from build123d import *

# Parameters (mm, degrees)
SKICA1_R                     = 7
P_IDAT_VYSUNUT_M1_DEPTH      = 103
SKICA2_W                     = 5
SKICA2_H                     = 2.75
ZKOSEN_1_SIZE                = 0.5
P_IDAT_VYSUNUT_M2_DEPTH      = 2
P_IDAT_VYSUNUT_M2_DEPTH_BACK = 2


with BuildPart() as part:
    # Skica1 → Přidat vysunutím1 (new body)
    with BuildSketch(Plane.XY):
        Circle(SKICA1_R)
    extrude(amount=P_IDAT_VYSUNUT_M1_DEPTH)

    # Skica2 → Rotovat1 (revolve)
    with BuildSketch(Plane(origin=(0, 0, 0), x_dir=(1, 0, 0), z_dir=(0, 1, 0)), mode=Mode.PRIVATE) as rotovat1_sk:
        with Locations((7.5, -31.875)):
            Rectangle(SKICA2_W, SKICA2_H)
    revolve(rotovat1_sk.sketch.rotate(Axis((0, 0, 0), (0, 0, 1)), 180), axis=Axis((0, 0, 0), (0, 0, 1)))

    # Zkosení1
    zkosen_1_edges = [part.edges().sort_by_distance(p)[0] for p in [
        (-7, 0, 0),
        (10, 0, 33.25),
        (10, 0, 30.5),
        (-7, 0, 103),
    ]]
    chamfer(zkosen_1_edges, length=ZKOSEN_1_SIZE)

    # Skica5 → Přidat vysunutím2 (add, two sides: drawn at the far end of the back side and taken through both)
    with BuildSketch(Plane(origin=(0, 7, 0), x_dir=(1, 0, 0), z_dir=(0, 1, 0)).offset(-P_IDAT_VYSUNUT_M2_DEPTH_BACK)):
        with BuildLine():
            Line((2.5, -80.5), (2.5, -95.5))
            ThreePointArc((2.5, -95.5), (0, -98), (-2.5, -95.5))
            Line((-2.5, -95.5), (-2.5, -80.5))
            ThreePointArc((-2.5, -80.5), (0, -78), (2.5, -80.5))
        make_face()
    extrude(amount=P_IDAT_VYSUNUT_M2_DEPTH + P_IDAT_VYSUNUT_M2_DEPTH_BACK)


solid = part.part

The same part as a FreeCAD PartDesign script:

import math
import FreeCAD as App
import Part
import Sketcher

V = App.Vector


def edges_at(feature, points):
    """Names of the edges that pass closest to the given points."""
    edges = feature.Shape.Edges
    near = lambda p: min(range(len(edges)), key=lambda i: edges[i].distToShape(Part.Vertex(*p))[0])
    return sorted({f"Edge{near(p) + 1}" for p in points})


def add_polygon(sketch, points):
    """Adds a closed chain of lines whose ends are joined by coincident constraints."""
    first, n = sketch.GeometryCount, len(points)
    for a, b in zip(points, points[1:] + points[:1]):
        sketch.addGeometry(Part.LineSegment(App.Vector(*a, 0), App.Vector(*b, 0)), False)
    for i in range(n):
        sketch.addConstraint(Sketcher.Constraint("Coincident", first + i, 2, first + (i + 1) % n, 1))

doc = App.newDocument("Part")
body = doc.addObject("PartDesign::Body", "Body")

sketch1 = body.newObject("Sketcher::SketchObject", "Sketch")
sketch1.AttachmentSupport = (doc.getObject("XY_Plane"), [""])
sketch1.MapMode = "FlatFace"
sketch1.addGeometry(Part.Circle(V(0, 0, 0), V(0, 0, 1), 7), False)
sketch1.addConstraint([
    Sketcher.Constraint("Coincident", 0, 3, -1, 1),
    Sketcher.Constraint("Diameter", 0, 14.0),
])
pad1 = body.newObject("PartDesign::Pad", "Pad")
pad1.Profile = sketch1
pad1.Length = 103

sketch2 = body.newObject("Sketcher::SketchObject", "Sketch001")
sketch2.AttachmentSupport = (doc.getObject("XZ_Plane"), [""])
sketch2.MapMode = "FlatFace"
add_polygon(sketch2, [(5, 30.5), (5, 33.2), (10, 33.2), (10, 30.5)])
sketch2.addConstraint([
    Sketcher.Constraint("Vertical", 0),
    Sketcher.Constraint("Horizontal", 1),
    Sketcher.Constraint("Vertical", 2),
    Sketcher.Constraint("Horizontal", 3),
    Sketcher.Constraint("DistanceX", 1, 1, 1, 2, 5.0),
    Sketcher.Constraint("DistanceX", -1, 1, 0, 2, 5.0),
    Sketcher.Constraint("DistanceY", 0, 1, 0, 2, 2.75),
    Sketcher.Constraint("DistanceY", -1, 1, 2, 2, 30.5),
])
revolution = body.newObject("PartDesign::Revolution", "Revolution")
revolution.Profile = sketch2
revolution.ReferenceAxis = (sketch2, ["V_Axis"])
revolution.Angle = 360
doc.recompute()

chamfer = body.newObject("PartDesign::Chamfer", "Chamfer")
chamfer.Base = (revolution, edges_at(revolution, [
    (-7, 0, 0),
    (10, 0, 33.25),
    (10, 0, 30.5),
    (-7, 0, 103),
]))
chamfer.Size = 0.5

sketch3 = body.newObject("Sketcher::SketchObject", "Sketch002")
sketch3.AttachmentSupport = (doc.getObject("XZ_Plane"), [""])
sketch3.MapMode = "FlatFace"
sketch3.AttachmentOffset = App.Placement(V(0, 0, -7), App.Rotation())
sketch3.addGeometry([
    Part.LineSegment(V(2.5, 95.5, 0), V(2.5, 80.5, 0)),
    Part.ArcOfCircle(Part.Circle(V(0, 80.5, 0), V(0, 0, 1), 2.5), math.radians(180), math.radians(360)),
    Part.LineSegment(V(-2.5, 80.5, 0), V(-2.5, 95.5, 0)),
    Part.ArcOfCircle(Part.Circle(V(0, 95.5, 0), V(0, 0, 1), 2.5), math.radians(0), math.radians(180)),
], False)
sketch3.addConstraint([
    Sketcher.Constraint("Tangent", 0, 2, 1, 2),
    Sketcher.Constraint("Tangent", 1, 1, 2, 1),
    Sketcher.Constraint("Tangent", 2, 2, 3, 2),
    Sketcher.Constraint("Tangent", 3, 1, 0, 1),
    Sketcher.Constraint("Vertical", 0),
    Sketcher.Constraint("Vertical", 2),
    Sketcher.Constraint("PointOnObject", 1, 3, -2),
    Sketcher.Constraint("Radius", 1, 2.5),
    Sketcher.Constraint("DistanceY", 0, 2, 0, 1, 15.0),
    Sketcher.Constraint("DistanceY", -1, 1, 1, 3, 80.5),
])
pad2 = body.newObject("PartDesign::Pad", "Pad001")
pad2.Profile = sketch3
pad2.Type = "TwoLengths"
pad2.Length = 2
pad2.Length2 = 2
pad2.Reversed = True

doc.recompute()
